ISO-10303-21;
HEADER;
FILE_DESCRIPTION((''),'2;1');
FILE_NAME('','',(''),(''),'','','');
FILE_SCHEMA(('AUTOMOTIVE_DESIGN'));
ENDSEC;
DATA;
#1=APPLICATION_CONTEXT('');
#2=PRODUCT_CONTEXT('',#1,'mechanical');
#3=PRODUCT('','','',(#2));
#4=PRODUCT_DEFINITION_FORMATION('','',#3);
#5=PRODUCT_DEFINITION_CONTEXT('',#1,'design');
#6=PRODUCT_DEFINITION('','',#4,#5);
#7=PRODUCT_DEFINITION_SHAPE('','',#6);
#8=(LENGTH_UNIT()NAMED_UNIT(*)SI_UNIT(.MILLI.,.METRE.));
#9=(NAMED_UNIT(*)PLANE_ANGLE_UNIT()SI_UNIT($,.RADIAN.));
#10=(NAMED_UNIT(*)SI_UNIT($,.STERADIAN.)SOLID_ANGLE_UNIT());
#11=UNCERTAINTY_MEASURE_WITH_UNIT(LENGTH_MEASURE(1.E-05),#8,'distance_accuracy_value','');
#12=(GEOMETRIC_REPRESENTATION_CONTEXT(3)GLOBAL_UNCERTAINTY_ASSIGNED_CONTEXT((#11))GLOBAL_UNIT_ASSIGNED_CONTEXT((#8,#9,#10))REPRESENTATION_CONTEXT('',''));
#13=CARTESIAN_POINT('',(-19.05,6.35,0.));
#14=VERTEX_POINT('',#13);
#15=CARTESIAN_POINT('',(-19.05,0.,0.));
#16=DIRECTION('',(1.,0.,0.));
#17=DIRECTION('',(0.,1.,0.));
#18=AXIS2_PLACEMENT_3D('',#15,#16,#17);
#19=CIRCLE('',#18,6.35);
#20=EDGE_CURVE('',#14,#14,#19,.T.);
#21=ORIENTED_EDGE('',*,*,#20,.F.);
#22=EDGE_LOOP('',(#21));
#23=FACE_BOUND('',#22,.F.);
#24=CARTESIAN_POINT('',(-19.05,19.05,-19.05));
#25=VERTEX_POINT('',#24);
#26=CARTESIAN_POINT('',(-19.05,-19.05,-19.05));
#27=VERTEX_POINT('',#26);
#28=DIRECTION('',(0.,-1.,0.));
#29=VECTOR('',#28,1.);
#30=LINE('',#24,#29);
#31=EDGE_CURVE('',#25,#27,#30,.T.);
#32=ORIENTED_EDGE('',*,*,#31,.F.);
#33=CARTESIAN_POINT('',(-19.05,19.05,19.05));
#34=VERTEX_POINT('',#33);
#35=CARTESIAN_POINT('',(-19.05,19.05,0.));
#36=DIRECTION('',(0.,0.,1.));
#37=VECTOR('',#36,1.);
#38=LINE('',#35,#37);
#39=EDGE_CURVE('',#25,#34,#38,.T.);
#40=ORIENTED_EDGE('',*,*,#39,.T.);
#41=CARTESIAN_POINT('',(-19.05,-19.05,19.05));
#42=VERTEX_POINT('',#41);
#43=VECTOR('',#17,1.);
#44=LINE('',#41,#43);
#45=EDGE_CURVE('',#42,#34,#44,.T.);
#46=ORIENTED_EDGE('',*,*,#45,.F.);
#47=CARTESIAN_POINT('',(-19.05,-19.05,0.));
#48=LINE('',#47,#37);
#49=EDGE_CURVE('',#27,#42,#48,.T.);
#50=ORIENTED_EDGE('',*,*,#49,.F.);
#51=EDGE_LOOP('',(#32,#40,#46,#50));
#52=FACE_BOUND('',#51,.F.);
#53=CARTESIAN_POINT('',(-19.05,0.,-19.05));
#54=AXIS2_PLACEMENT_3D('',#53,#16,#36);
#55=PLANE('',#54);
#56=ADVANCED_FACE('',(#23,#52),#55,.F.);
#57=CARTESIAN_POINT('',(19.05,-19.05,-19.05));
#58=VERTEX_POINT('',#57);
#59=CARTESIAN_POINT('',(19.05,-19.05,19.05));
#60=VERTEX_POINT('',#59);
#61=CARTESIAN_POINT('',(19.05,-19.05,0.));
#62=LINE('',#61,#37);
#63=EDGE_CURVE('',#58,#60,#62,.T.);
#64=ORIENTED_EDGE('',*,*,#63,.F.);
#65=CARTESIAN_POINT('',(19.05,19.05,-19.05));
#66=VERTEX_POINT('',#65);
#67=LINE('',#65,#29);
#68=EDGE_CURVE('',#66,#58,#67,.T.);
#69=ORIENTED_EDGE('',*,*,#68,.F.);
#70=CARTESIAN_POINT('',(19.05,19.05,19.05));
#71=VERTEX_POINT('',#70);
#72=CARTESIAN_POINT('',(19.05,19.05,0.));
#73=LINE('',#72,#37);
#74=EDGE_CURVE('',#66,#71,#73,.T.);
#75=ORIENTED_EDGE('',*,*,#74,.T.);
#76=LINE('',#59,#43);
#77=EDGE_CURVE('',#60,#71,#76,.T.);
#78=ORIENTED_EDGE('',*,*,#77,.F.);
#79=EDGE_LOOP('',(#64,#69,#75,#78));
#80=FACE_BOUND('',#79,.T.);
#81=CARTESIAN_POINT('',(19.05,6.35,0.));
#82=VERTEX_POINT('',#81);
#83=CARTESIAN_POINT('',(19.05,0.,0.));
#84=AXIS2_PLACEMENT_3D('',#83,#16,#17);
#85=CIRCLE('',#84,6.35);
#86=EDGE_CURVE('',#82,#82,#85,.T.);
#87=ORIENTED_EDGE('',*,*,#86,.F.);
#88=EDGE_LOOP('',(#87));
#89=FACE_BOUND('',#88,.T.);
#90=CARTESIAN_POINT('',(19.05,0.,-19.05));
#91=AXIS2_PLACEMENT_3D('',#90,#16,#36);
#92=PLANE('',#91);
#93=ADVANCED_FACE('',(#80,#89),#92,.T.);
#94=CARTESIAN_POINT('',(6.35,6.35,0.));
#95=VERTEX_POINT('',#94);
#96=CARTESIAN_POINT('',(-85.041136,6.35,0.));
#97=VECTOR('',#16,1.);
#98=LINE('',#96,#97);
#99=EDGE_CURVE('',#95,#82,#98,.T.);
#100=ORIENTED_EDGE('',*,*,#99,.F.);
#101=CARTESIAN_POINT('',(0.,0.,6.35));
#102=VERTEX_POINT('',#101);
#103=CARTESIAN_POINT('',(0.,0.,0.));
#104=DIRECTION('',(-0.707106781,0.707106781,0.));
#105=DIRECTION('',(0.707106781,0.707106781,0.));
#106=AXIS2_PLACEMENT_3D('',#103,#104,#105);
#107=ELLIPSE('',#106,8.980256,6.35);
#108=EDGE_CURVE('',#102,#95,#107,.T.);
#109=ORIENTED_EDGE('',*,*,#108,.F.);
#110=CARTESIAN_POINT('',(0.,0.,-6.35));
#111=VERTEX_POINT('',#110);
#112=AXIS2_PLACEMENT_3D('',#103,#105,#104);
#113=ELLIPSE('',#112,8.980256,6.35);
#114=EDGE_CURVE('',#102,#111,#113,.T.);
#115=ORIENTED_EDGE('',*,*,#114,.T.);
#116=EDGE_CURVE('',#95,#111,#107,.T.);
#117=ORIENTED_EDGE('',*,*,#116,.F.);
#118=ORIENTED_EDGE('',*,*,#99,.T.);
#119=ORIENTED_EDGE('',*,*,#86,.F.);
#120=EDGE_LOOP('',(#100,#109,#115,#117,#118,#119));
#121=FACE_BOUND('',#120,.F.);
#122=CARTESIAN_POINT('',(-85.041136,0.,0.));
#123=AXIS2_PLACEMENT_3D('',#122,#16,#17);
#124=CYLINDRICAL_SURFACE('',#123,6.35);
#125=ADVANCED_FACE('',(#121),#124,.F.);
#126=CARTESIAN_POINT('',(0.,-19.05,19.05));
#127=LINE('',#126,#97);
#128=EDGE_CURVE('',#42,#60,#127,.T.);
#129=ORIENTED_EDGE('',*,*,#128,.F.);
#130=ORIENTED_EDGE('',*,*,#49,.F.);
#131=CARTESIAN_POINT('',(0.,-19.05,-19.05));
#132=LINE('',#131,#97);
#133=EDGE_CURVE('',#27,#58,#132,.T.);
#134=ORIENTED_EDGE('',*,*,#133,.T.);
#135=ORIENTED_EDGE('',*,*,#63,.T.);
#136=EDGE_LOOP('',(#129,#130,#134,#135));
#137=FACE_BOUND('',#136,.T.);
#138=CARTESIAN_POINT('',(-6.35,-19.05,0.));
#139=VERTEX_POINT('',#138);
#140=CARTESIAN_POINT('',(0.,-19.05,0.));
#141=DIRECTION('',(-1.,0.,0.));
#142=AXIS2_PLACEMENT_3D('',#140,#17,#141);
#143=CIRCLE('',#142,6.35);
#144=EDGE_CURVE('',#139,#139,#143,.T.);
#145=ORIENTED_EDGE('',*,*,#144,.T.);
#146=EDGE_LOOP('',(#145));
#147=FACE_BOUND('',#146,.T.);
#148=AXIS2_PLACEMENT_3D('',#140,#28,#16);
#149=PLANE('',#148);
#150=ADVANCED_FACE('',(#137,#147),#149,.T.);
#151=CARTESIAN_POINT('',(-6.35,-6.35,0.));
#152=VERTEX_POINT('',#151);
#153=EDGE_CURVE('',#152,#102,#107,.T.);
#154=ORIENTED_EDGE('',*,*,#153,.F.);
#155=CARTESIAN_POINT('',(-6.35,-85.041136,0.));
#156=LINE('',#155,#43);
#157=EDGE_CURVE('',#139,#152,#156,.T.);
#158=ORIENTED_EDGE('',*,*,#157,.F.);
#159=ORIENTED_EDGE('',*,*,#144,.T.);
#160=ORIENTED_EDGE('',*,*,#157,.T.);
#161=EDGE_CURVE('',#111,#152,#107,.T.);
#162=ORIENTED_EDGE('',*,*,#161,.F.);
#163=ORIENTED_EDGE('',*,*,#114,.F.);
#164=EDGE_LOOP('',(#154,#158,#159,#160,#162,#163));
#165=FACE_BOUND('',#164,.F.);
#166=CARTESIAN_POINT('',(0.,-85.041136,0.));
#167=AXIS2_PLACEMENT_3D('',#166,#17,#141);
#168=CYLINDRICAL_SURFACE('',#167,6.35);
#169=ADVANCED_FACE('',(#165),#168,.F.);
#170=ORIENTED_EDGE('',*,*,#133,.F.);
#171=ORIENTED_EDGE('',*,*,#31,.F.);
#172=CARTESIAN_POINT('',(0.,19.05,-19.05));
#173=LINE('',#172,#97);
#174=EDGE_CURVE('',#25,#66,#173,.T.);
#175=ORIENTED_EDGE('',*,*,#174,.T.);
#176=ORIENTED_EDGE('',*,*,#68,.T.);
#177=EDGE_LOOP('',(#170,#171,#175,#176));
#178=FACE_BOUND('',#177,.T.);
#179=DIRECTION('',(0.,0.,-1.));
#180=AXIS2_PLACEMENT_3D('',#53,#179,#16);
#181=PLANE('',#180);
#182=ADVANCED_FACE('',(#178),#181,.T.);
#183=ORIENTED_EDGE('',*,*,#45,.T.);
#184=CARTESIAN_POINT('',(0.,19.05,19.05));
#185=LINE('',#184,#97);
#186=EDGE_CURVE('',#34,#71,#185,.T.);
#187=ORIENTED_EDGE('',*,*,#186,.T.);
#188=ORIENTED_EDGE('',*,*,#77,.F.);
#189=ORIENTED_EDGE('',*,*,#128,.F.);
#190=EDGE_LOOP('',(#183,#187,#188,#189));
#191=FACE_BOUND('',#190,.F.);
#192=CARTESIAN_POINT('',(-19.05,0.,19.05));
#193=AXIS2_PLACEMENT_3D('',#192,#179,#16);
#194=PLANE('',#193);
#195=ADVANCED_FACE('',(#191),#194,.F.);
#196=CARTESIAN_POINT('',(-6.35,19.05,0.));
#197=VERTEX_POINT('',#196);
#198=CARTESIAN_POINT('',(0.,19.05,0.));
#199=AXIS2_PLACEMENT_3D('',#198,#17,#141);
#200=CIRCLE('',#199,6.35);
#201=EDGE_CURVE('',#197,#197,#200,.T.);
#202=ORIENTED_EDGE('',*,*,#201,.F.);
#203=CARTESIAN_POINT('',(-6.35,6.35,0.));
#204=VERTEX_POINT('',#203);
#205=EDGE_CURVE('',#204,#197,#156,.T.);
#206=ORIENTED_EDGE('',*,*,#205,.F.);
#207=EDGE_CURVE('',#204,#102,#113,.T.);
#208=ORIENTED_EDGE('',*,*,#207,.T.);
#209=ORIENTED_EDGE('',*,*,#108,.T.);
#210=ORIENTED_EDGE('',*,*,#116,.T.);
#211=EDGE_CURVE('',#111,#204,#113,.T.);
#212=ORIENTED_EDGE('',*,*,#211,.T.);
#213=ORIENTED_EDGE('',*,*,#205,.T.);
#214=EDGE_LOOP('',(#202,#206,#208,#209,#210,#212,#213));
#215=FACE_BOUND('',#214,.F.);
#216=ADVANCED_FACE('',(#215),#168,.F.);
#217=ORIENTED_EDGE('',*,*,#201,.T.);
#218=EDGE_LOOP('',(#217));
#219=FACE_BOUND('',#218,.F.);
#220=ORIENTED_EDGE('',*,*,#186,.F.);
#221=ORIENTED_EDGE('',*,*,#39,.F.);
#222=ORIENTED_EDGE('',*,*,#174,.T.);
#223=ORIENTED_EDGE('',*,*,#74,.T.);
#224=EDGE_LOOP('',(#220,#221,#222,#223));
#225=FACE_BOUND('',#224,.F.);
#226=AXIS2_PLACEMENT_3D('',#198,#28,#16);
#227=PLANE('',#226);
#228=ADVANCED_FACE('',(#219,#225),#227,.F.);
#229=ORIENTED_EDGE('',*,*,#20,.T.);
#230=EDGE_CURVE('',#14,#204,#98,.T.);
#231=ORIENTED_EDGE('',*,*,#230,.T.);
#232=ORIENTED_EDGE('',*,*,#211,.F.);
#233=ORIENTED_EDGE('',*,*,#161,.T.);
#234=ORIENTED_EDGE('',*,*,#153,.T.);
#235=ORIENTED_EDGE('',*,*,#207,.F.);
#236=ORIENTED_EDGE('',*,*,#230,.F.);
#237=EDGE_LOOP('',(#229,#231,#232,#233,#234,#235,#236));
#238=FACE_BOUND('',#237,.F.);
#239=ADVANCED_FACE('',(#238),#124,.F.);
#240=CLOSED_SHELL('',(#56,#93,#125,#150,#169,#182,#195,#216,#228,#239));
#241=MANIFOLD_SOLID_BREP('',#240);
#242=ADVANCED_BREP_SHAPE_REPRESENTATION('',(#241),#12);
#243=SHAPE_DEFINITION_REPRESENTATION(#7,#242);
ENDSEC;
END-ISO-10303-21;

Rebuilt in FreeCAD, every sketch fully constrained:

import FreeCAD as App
import Part
import Sketcher

V = App.Vector
Q = App.Units.Quantity


def add_polygon(sketch, points):
    """Adds a closed chain of lines whose ends are joined by coincident constraints."""
    first, n = sketch.GeometryCount, len(points)
    for a, b in zip(points, points[1:] + points[:1]):
        sketch.addGeometry(Part.LineSegment(App.Vector(*a, 0), App.Vector(*b, 0)), False)
    for i in range(n):
        sketch.addConstraint(Sketcher.Constraint("Coincident", first + i, 2, first + (i + 1) % n, 1))

doc = App.newDocument("Part")
body = doc.addObject("PartDesign::Body", "Body")

# Sketch on XZ plane
sketch1 = doc.addObject("Sketcher::SketchObject", "Sketch")
body.addObject(sketch1)
sketch1.AttachmentSupport = (doc.XZ_Plane, [""])
sketch1.MapMode = "FlatFace"
add_polygon(sketch1, [(-19, 19), (-19, -19), (19, -19), (19, 19)])  # lines 0-3
sketch1.addConstraint([
    Sketcher.Constraint("Vertical", 0),
    Sketcher.Constraint("Horizontal", 1),
    Sketcher.Constraint("Vertical", 2),
    Sketcher.Constraint("Horizontal", 3),
    Sketcher.Constraint("Symmetric", 0, 2, 2, 2, -1, 1),
    Sketcher.Constraint("Equal", 3, 0),
    Sketcher.Constraint("DistanceX", 1, 1, 1, 2, Q("1.5 in")),
])
pad1 = doc.addObject("PartDesign::Pad", "Pad")
body.addObject(pad1)
pad1.Profile = sketch1
pad1.Length = Q("1.5 in")
pad1.Midplane = True

# Sketch on XZ plane
sketch2 = doc.addObject("Sketcher::SketchObject", "Sketch001")
body.addObject(sketch2)
sketch2.AttachmentSupport = (doc.XZ_Plane, [""])
sketch2.MapMode = "FlatFace"
sketch2.AttachmentOffset = App.Placement(V(0, 0, 0.75 * 25.4), App.Rotation())
sketch2.addGeometry(Part.Circle(V(0, 0, 0), V(0, 0, 1), 6), False)
sketch2.addConstraint([
    Sketcher.Constraint("Coincident", 0, 3, -1, 1),
    Sketcher.Constraint("Diameter", 0, Q("0.5 in")),
])
doc.recompute()
hole = doc.addObject("PartDesign::Hole", "Hole")
body.addObject(hole)
hole.Profile = sketch2
hole.ThreadType = "None"
hole.Diameter = Q("0.5 in")
hole.DepthType = "ThroughAll"

# Sketch on YZ plane
sketch3 = doc.addObject("Sketcher::SketchObject", "Sketch002")
body.addObject(sketch3)
sketch3.AttachmentSupport = (doc.YZ_Plane, [""])
sketch3.MapMode = "FlatFace"
sketch3.AttachmentOffset = App.Placement(V(0, 0, -0.75 * 25.4), App.Rotation())
sketch3.addGeometry(Part.Circle(V(0, 0, 0), V(0, 0, 1), 6), False)
sketch3.addConstraint([
    Sketcher.Constraint("Coincident", 0, 3, -1, 1),
    Sketcher.Constraint("Diameter", 0, Q("0.5 in")),
])
doc.recompute()
hole2 = doc.addObject("PartDesign::Hole", "Hole001")
body.addObject(hole2)
hole2.Profile = sketch3
hole2.ThreadType = "None"
hole2.Diameter = Q("0.5 in")
hole2.DepthType = "ThroughAll"
hole2.Reversed = True

doc.recompute()
